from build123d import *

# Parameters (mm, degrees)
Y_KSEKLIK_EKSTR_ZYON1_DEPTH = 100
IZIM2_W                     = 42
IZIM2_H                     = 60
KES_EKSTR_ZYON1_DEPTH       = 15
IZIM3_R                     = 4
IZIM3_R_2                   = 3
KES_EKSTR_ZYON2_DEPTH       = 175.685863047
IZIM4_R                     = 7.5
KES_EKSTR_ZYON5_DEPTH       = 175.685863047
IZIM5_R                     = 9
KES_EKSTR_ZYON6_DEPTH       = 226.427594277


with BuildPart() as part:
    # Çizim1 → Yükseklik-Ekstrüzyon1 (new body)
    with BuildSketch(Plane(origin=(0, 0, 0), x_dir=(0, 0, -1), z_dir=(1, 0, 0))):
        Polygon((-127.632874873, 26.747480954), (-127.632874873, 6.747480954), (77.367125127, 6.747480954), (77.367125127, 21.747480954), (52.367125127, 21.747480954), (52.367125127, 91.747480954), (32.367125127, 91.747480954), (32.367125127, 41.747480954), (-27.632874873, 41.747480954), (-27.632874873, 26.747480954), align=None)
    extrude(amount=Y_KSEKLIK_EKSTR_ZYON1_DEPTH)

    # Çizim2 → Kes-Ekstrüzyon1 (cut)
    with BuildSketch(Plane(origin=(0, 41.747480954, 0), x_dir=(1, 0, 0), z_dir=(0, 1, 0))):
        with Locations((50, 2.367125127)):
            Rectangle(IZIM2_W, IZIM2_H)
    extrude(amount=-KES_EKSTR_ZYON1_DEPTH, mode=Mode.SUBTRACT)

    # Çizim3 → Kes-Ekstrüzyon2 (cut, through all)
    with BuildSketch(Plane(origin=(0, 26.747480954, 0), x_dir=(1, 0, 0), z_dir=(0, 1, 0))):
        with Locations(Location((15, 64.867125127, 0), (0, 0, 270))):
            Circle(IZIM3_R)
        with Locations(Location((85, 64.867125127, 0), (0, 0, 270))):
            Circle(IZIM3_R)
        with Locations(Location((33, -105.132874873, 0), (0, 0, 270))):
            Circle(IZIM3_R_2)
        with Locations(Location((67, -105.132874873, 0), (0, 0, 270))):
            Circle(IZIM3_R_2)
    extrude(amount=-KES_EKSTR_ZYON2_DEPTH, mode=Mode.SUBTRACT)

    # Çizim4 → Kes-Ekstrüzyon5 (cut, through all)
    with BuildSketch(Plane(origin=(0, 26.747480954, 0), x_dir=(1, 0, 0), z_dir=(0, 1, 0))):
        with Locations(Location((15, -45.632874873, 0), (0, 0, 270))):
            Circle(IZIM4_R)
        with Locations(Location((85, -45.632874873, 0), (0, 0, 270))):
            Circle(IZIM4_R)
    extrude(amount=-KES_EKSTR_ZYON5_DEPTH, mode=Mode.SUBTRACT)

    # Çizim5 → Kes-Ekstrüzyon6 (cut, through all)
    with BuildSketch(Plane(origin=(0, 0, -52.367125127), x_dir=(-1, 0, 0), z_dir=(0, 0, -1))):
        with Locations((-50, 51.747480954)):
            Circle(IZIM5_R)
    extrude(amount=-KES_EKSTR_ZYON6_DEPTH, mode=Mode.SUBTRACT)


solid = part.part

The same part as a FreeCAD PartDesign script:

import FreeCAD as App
import Part
import Sketcher

V = App.Vector


def add_polygon(sketch, points):
    """Adds a closed chain of lines whose ends are joined by coincident constraints."""
    first, n = sketch.GeometryCount, len(points)
    for a, b in zip(points, points[1:] + points[:1]):
        sketch.addGeometry(Part.LineSegment(App.Vector(*a, 0), App.Vector(*b, 0)), False)
    for i in range(n):
        sketch.addConstraint(Sketcher.Constraint("Coincident", first + i, 2, first + (i + 1) % n, 1))

doc = App.newDocument("Part")
body = doc.addObject("PartDesign::Body", "Body")

# Sketch on YZ plane
sketch1 = body.newObject("Sketcher::SketchObject", "Sketch")
sketch1.AttachmentSupport = (doc.getObject("YZ_Plane"), [""])
sketch1.MapMode = "FlatFace"
add_polygon(sketch1, [(27, 128), (7, 128), (7, -77), (22, -77), (22, -52), (92, -52), (92, -32), (42, -32), (42, 28), (27, 28)])  # lines 0-9
sketch1.addConstraint(Sketcher.Constraint("Horizontal", 0))
sketch1.addConstraint(Sketcher.Constraint("Vertical", 1))
sketch1.addConstraint(Sketcher.Constraint("Horizontal", 2))
sketch1.addConstraint(Sketcher.Constraint("Vertical", 3))
sketch1.addConstraint(Sketcher.Constraint("Horizontal", 4))
sketch1.addConstraint(Sketcher.Constraint("Vertical", 5))
sketch1.addConstraint(Sketcher.Constraint("Horizontal", 6))
sketch1.addConstraint(Sketcher.Constraint("Vertical", 7))
sketch1.addConstraint(Sketcher.Constraint("Horizontal", 8))
sketch1.addConstraint(Sketcher.Constraint("Vertical", 9))
sketch1.addConstraint(Sketcher.Constraint("Equal", 2, 8))
sketch1.addConstraint(Sketcher.Constraint("Equal", 0, 5))
sketch1.addConstraint(Sketcher.Constraint("DistanceX", 0, 2, 0, 1, 20.0))
sketch1.addConstraint(Sketcher.Constraint("DistanceX", 2, 1, 2, 2, 15.0))
sketch1.addConstraint(Sketcher.Constraint("DistanceX", 4, 1, 4, 2, 70.0))
sketch1.addConstraint(Sketcher.Constraint("DistanceY", 1, 2, 1, 1, 205.0))
sketch1.addConstraint(Sketcher.Constraint("DistanceY", 3, 1, 3, 2, 25.0))
sketch1.addConstraint(Sketcher.Constraint("DistanceY", 7, 1, 7, 2, 60.0))
sketch1.addConstraint(Sketcher.Constraint("DistanceX", -1, 1, 0, 2, 6.747481))
sketch1.addConstraint(Sketcher.Constraint("DistanceY", -1, 1, 0, 2, 127.632875))
pad1 = body.newObject("PartDesign::Pad", "Pad")
pad1.Profile = sketch1
pad1.Length = 100

# Sketch on XZ plane
sketch2 = body.newObject("Sketcher::SketchObject", "Sketch001")
sketch2.AttachmentSupport = (doc.getObject("XZ_Plane"), [""])
sketch2.MapMode = "FlatFace"
sketch2.AttachmentOffset = App.Placement(V(0, 0, -41.747481), App.Rotation())
add_polygon(sketch2, [(29, -32), (29, 28), (71, 28), (71, -32)])  # lines 0-3
sketch2.addConstraint(Sketcher.Constraint("Vertical", 0))
sketch2.addConstraint(Sketcher.Constraint("Horizontal", 1))
sketch2.addConstraint(Sketcher.Constraint("Vertical", 2))
sketch2.addConstraint(Sketcher.Constraint("Horizontal", 3))
sketch2.addConstraint(Sketcher.Constraint("DistanceX", 1, 1, 1, 2, 42.0))
sketch2.addConstraint(Sketcher.Constraint("DistanceY", 0, 1, 0, 2, 60.0))
sketch2.addConstraint(Sketcher.Constraint("DistanceX", -1, 1, 0, 2, 29.0))
sketch2.addConstraint(Sketcher.Constraint("DistanceY", -1, 1, 0, 2, 27.632875))
pocket1 = body.newObject("PartDesign::Pocket", "Pocket")
pocket1.Profile = sketch2
pocket1.Length = 15
pocket1.Reversed = True

# Sketch on XZ plane
sketch3 = body.newObject("Sketcher::SketchObject", "Sketch002")
sketch3.AttachmentSupport = (doc.getObject("XZ_Plane"), [""])
sketch3.MapMode = "FlatFace"
sketch3.AttachmentOffset = App.Placement(V(0, 0, -26.747481), App.Rotation())
sketch3.addGeometry(Part.Circle(V(15, -64.9, 0), V(0, 0, 1), 4), False)
sketch3.addGeometry(Part.Circle(V(85, -64.9, 0), V(0, 0, 1), 4), False)
sketch3.addGeometry(Part.Circle(V(33, 105.1, 0), V(0, 0, 1), 3), False)
sketch3.addGeometry(Part.Circle(V(67, 105.1, 0), V(0, 0, 1), 3), False)
sketch3.addConstraint(Sketcher.Constraint("Equal", 0, 1))
sketch3.addConstraint(Sketcher.Constraint("Equal", 2, 3))
sketch3.addConstraint(Sketcher.Constraint("Horizontal", 0, 3, 1, 3))
sketch3.addConstraint(Sketcher.Constraint("Horizontal", 2, 3, 3, 3))
sketch3.addConstraint(Sketcher.Constraint("Diameter", 0, 8.0))
sketch3.addConstraint(Sketcher.Constraint("Diameter", 2, 6.0))
sketch3.addConstraint(Sketcher.Constraint("DistanceX", -1, 1, 0, 3, 15.0))
sketch3.addConstraint(Sketcher.Constraint("DistanceX", -1, 1, 1, 3, 85.0))
sketch3.addConstraint(Sketcher.Constraint("DistanceX", -1, 1, 2, 3, 33.0))
sketch3.addConstraint(Sketcher.Constraint("DistanceX", -1, 1, 3, 3, 67.0))
sketch3.addConstraint(Sketcher.Constraint("DistanceY", 0, 3, 2, 3, 170.0))
sketch3.addConstraint(Sketcher.Constraint("DistanceY", 0, 3, -1, 1, 64.867125))
pocket2 = body.newObject("PartDesign::Pocket", "Pocket001")
pocket2.Profile = sketch3
pocket2.Type = "ThroughAll"
pocket2.Reversed = True

# Sketch on XZ plane
sketch4 = body.newObject("Sketcher::SketchObject", "Sketch003")
sketch4.AttachmentSupport = (doc.getObject("XZ_Plane"), [""])
sketch4.MapMode = "FlatFace"
sketch4.AttachmentOffset = App.Placement(V(0, 0, -26.747481), App.Rotation())
sketch4.addGeometry(Part.Circle(V(15, 46, 0), V(0, 0, 1), 8), False)
sketch4.addGeometry(Part.Circle(V(85, 46, 0), V(0, 0, 1), 8), False)
sketch4.addConstraint(Sketcher.Constraint("Equal", 0, 1))
sketch4.addConstraint(Sketcher.Constraint("Horizontal", 0, 3, 1, 3))
sketch4.addConstraint(Sketcher.Constraint("Diameter", 0, 15.0))
sketch4.addConstraint(Sketcher.Constraint("DistanceX", -1, 1, 0, 3, 15.0))
sketch4.addConstraint(Sketcher.Constraint("DistanceX", -1, 1, 1, 3, 85.0))
sketch4.addConstraint(Sketcher.Constraint("DistanceY", -1, 1, 0, 3, 45.632875))
pocket3 = body.newObject("PartDesign::Pocket", "Pocket002")
pocket3.Profile = sketch4
pocket3.Type = "ThroughAll"
pocket3.Reversed = True

# Sketch on XY plane
sketch5 = body.newObject("Sketcher::SketchObject", "Sketch004")
sketch5.AttachmentSupport = (doc.getObject("XY_Plane"), [""])
sketch5.MapMode = "FlatFace"
sketch5.AttachmentOffset = App.Placement(V(0, 0, -52.367125), App.Rotation())
sketch5.addGeometry(Part.Circle(V(50, 52, 0), V(0, 0, 1), 9), False)
sketch5.addConstraint(Sketcher.Constraint("Diameter", 0, 18.0))
sketch5.addConstraint(Sketcher.Constraint("DistanceX", -1, 1, 0, 3, 50.0))
sketch5.addConstraint(Sketcher.Constraint("DistanceY", -1, 1, 0, 3, 51.747481))
pocket4 = body.newObject("PartDesign::Pocket", "Pocket003")
pocket4.Profile = sketch5
pocket4.Type = "ThroughAll"
pocket4.Reversed = True

doc.recompute()
